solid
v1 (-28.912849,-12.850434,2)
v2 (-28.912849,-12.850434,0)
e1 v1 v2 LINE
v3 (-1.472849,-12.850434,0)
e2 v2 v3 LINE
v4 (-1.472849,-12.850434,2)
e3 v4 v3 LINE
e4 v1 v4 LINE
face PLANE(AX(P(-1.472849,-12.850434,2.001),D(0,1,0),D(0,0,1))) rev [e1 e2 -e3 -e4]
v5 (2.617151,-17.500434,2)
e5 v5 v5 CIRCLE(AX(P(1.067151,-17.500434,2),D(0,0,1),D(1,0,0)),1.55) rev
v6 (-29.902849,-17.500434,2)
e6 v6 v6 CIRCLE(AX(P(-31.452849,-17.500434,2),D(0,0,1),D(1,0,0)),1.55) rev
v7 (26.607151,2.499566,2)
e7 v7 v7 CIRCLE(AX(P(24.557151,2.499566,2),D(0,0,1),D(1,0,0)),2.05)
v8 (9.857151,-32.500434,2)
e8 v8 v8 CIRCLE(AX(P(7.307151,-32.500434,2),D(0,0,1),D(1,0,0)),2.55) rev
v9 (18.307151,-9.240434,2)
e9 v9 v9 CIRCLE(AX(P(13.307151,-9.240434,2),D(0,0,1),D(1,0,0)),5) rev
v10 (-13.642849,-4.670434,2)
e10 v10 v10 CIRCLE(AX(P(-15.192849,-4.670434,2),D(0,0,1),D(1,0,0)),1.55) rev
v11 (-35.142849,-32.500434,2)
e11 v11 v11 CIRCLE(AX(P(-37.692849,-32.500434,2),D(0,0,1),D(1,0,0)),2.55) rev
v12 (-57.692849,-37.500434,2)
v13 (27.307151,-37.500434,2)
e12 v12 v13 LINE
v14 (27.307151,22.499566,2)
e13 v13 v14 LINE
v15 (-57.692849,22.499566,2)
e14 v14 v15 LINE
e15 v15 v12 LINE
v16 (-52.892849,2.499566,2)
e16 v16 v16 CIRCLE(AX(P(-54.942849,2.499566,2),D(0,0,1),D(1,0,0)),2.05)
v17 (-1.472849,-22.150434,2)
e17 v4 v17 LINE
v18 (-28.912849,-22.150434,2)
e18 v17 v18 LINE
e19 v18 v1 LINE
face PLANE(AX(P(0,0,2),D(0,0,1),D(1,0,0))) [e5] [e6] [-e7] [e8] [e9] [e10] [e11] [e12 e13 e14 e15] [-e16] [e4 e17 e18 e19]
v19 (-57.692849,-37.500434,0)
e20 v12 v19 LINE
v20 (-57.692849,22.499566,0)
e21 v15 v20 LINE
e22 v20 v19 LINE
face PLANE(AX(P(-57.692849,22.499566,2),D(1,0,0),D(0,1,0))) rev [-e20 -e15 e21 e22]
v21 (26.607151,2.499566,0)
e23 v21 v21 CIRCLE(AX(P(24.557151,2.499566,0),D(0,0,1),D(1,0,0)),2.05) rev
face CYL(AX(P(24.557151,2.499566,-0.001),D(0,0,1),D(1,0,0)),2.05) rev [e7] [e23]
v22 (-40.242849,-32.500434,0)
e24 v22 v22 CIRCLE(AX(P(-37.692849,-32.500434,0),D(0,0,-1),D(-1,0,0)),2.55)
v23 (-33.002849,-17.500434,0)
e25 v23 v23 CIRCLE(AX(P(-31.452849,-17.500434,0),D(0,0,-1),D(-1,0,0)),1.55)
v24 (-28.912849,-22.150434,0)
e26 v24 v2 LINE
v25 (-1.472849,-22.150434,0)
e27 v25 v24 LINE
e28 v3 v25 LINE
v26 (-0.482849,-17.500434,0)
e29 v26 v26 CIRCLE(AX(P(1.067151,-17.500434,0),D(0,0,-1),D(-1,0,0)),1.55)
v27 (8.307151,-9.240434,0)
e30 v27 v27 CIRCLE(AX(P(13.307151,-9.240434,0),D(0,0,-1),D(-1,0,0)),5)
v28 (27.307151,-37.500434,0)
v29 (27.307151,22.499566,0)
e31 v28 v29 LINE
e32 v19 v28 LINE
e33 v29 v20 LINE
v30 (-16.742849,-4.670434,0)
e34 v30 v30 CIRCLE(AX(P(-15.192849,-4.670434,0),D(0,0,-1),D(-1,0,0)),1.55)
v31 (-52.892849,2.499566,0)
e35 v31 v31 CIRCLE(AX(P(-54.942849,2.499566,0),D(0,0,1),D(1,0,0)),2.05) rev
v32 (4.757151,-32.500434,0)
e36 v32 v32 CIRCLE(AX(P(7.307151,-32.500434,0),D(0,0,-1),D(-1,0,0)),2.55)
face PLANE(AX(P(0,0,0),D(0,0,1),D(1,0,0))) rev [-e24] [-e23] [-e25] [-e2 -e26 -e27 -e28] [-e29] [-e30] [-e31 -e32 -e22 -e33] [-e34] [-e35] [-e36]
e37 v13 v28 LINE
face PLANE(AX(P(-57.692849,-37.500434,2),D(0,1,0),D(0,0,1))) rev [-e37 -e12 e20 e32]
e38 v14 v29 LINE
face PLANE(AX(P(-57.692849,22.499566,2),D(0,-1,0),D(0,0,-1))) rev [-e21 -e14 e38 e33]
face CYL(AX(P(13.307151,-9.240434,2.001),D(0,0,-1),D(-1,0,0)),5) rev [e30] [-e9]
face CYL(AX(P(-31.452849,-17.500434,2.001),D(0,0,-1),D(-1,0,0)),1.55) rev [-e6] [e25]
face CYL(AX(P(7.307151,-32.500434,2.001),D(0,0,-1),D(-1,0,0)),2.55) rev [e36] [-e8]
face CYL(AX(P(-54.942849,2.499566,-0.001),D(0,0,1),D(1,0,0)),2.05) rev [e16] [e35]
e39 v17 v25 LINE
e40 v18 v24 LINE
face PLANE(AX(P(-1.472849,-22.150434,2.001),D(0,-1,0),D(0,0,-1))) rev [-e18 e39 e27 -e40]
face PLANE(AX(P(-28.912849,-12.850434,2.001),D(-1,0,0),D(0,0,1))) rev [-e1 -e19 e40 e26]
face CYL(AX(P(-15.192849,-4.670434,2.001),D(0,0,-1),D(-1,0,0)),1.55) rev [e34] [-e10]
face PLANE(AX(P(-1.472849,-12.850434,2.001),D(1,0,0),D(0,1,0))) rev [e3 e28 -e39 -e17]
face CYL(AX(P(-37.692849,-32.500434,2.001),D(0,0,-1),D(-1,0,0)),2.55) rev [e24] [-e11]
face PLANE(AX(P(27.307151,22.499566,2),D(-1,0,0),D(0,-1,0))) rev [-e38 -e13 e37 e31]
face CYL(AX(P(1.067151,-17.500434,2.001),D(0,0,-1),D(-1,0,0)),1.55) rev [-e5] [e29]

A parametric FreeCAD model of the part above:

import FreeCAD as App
import Part
import Sketcher

doc = App.newDocument("Part")
body = doc.addObject("PartDesign::Body", "Body")

# Sketch on XY plane
sketch1 = body.newObject("Sketcher::SketchObject", "Sketch")
sketch1.AttachmentSupport = (doc.getObject("XY_Plane"), [""])
sketch1.MapMode = "FlatFace"
sketch1.addGeometry([
    Part.LineSegment(App.Vector(-58, 22, 0), App.Vector(-58, -38, 0)),
    Part.LineSegment(App.Vector(-58, -38, 0), App.Vector(27, -38, 0)),
    Part.LineSegment(App.Vector(27, -38, 0), App.Vector(27, 22, 0)),
    Part.LineSegment(App.Vector(27, 22, 0), App.Vector(-58, 22, 0)),
], False)
sketch1.addConstraint([
    Sketcher.Constraint("Coincident", 0, 2, 1, 1),
    Sketcher.Constraint("Coincident", 1, 2, 2, 1),
    Sketcher.Constraint("Coincident", 2, 2, 3, 1),
    Sketcher.Constraint("Coincident", 3, 2, 0, 1),
    Sketcher.Constraint("Vertical", 0),
    Sketcher.Constraint("Horizontal", 1),
    Sketcher.Constraint("Vertical", 2),
    Sketcher.Constraint("Horizontal", 3),
    Sketcher.Constraint("DistanceX", 1, 1, 1, 2, 85.0),
    Sketcher.Constraint("DistanceY", 0, 2, 0, 1, 60.0),
    Sketcher.Constraint("DistanceX", 0, 2, -1, 1, 57.692849),
    Sketcher.Constraint("DistanceY", 0, 2, -1, 1, 37.500434),
])
pad1 = body.newObject("PartDesign::Pad", "Pad")
pad1.Profile = sketch1
pad1.Length = 2

# Sketch on XY plane
sketch2 = body.newObject("Sketcher::SketchObject", "Sketch001")
sketch2.AttachmentSupport = (doc.getObject("XY_Plane"), [""])
sketch2.MapMode = "FlatFace"
sketch2.addGeometry(Part.Circle(App.Vector(7.3, -32.5, 0), App.Vector(0, 0, 1), 2.5), False)
sketch2.addConstraint([
    Sketcher.Constraint("Diameter", 0, 5.1),
    Sketcher.Constraint("DistanceX", -1, 1, 0, 3, 7.307151),
    Sketcher.Constraint("DistanceY", 0, 3, -1, 1, 32.500434),
])
pocket1 = body.newObject("PartDesign::Pocket", "Pocket")
pocket1.Profile = sketch2
pocket1.Type = "UpToFirst"
pocket1.Reversed = True

# Sketch on XY plane
sketch3 = body.newObject("Sketcher::SketchObject", "Sketch002")
sketch3.AttachmentSupport = (doc.getObject("XY_Plane"), [""])
sketch3.MapMode = "FlatFace"
sketch3.addGeometry(Part.Circle(App.Vector(-37.7, -32.5, 0), App.Vector(0, 0, 1), 2.5), False)
sketch3.addConstraint([
    Sketcher.Constraint("Diameter", 0, 5.1),
    Sketcher.Constraint("DistanceX", 0, 3, -1, 1, 37.692849),
    Sketcher.Constraint("DistanceY", 0, 3, -1, 1, 32.500434),
])
pocket2 = body.newObject("PartDesign::Pocket", "Pocket001")
pocket2.Profile = sketch3
pocket2.Type = "UpToFirst"
pocket2.Reversed = True

# Sketch on XY plane
sketch4 = body.newObject("Sketcher::SketchObject", "Sketch003")
sketch4.AttachmentSupport = (doc.getObject("XY_Plane"), [""])
sketch4.MapMode = "FlatFace"
sketch4.addGeometry(Part.Circle(App.Vector(13, -9, 0), App.Vector(0, 0, 1), 5), False)
sketch4.addConstraint([
    Sketcher.Constraint("Diameter", 0, 10.0),
    Sketcher.Constraint("DistanceX", -1, 1, 0, 3, 13.307151),
    Sketcher.Constraint("DistanceY", 0, 3, -1, 1, 9.240434),
])
pocket3 = body.newObject("PartDesign::Pocket", "Pocket002")
pocket3.Profile = sketch4
pocket3.Type = "UpToFirst"
pocket3.Reversed = True

# Sketch on XY plane
sketch5 = body.newObject("Sketcher::SketchObject", "Sketch004")
sketch5.AttachmentSupport = (doc.getObject("XY_Plane"), [""])
sketch5.MapMode = "FlatFace"
sketch5.addGeometry(Part.Circle(App.Vector(-15.2, -4.7, 0), App.Vector(0, 0, 1), 1.6), False)
sketch5.addConstraint([
    Sketcher.Constraint("Diameter", 0, 3.1),
    Sketcher.Constraint("DistanceX", 0, 3, -1, 1, 15.192849),
    Sketcher.Constraint("DistanceY", 0, 3, -1, 1, 4.670434),
])
pocket4 = body.newObject("PartDesign::Pocket", "Pocket003")
pocket4.Profile = sketch5
pocket4.Type = "UpToFirst"
pocket4.Reversed = True

# Sketch on XY plane
sketch6 = body.newObject("Sketcher::SketchObject", "Sketch005")
sketch6.AttachmentSupport = (doc.getObject("XY_Plane"), [""])
sketch6.MapMode = "FlatFace"
sketch6.addGeometry(Part.Circle(App.Vector(1.1, -17.5, 0), App.Vector(0, 0, 1), 1.6), False)
sketch6.addConstraint([
    Sketcher.Constraint("Diameter", 0, 3.1),
    Sketcher.Constraint("DistanceX", -1, 1, 0, 3, 1.067151),
    Sketcher.Constraint("DistanceY", 0, 3, -1, 1, 17.500434),
])
pocket5 = body.newObject("PartDesign::Pocket", "Pocket004")
pocket5.Profile = sketch6
pocket5.Type = "UpToFirst"
pocket5.Reversed = True

# Sketch on XY plane
sketch7 = body.newObject("Sketcher::SketchObject", "Sketch006")
sketch7.AttachmentSupport = (doc.getObject("XY_Plane"), [""])
sketch7.MapMode = "FlatFace"
sketch7.addGeometry(Part.Circle(App.Vector(-31.5, -17.5, 0), App.Vector(0, 0, 1), 1.6), False)
sketch7.addConstraint([
    Sketcher.Constraint("Diameter", 0, 3.1),
    Sketcher.Constraint("DistanceX", 0, 3, -1, 1, 31.452849),
    Sketcher.Constraint("DistanceY", 0, 3, -1, 1, 17.500434),
])
pocket6 = body.newObject("PartDesign::Pocket", "Pocket005")
pocket6.Profile = sketch7
pocket6.Type = "UpToFirst"
pocket6.Reversed = True

# Sketch on XY plane
sketch8 = body.newObject("Sketcher::SketchObject", "Sketch007")
sketch8.AttachmentSupport = (doc.getObject("XY_Plane"), [""])
sketch8.MapMode = "FlatFace"
sketch8.addGeometry([
    Part.LineSegment(App.Vector(-1, -13, 0), App.Vector(-1, -22, 0)),
    Part.LineSegment(App.Vector(-1, -22, 0), App.Vector(-29, -22, 0)),
    Part.LineSegment(App.Vector(-29, -22, 0), App.Vector(-29, -13, 0)),
    Part.LineSegment(App.Vector(-29, -13, 0), App.Vector(-1, -13, 0)),
], False)
sketch8.addConstraint([
    Sketcher.Constraint("Coincident", 0, 2, 1, 1),
    Sketcher.Constraint("Coincident", 1, 2, 2, 1),
    Sketcher.Constraint("Coincident", 2, 2, 3, 1),
    Sketcher.Constraint("Coincident", 3, 2, 0, 1),
    Sketcher.Constraint("Vertical", 0),
    Sketcher.Constraint("Horizontal", 1),
    Sketcher.Constraint("Vertical", 2),
    Sketcher.Constraint("Horizontal", 3),
    Sketcher.Constraint("DistanceY", 0, 2, 0, 1, 9.3),
    Sketcher.Constraint("DistanceX", 1, 2, 1, 1, 27.44),
    Sketcher.Constraint("DistanceX", 0, 2, -1, 1, 1.472849),
    Sketcher.Constraint("DistanceY", 0, 2, -1, 1, 22.150434),
])
pocket7 = body.newObject("PartDesign::Pocket", "Pocket006")
pocket7.Profile = sketch8
pocket7.Type = "UpToFirst"
pocket7.Reversed = True

# Sketch on XY plane
sketch9 = body.newObject("Sketcher::SketchObject", "Sketch008")
sketch9.AttachmentSupport = (doc.getObject("XY_Plane"), [""])
sketch9.MapMode = "FlatFace"
sketch9.AttachmentOffset = App.Placement(App.Vector(0, 0, 2), App.Rotation())
sketch9.addGeometry(Part.Circle(App.Vector(-54.9, 2.5, 0), App.Vector(0, 0, 1), 2), False)
sketch9.addConstraint([
    Sketcher.Constraint("Diameter", 0, 4.1),
    Sketcher.Constraint("DistanceX", 0, 3, -1, 1, 54.942849),
    Sketcher.Constraint("DistanceY", -1, 1, 0, 3, 2.499566),
])
pocket8 = body.newObject("PartDesign::Pocket", "Pocket007")
pocket8.Profile = sketch9
pocket8.Type = "UpToFirst"

# Sketch on XY plane
sketch10 = body.newObject("Sketcher::SketchObject", "Sketch009")
sketch10.AttachmentSupport = (doc.getObject("XY_Plane"), [""])
sketch10.MapMode = "FlatFace"
sketch10.AttachmentOffset = App.Placement(App.Vector(0, 0, 2), App.Rotation())
sketch10.addGeometry(Part.Circle(App.Vector(24.6, 2.5, 0), App.Vector(0, 0, 1), 2), False)
sketch10.addConstraint([
    Sketcher.Constraint("Diameter", 0, 4.1),
    Sketcher.Constraint("DistanceX", -1, 1, 0, 3, 24.557151),
    Sketcher.Constraint("DistanceY", -1, 1, 0, 3, 2.499566),
])
pocket9 = body.newObject("PartDesign::Pocket", "Pocket008")
pocket9.Profile = sketch10
pocket9.Type = "UpToFirst"

doc.recompute()
